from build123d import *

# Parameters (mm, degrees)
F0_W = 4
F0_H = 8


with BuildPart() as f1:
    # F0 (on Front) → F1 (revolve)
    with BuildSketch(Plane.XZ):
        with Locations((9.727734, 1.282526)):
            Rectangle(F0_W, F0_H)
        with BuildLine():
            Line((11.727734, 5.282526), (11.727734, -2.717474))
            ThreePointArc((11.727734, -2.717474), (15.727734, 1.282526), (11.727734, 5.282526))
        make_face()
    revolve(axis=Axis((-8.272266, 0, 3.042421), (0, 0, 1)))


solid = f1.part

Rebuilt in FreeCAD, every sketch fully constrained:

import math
import FreeCAD as App
import Part
import Sketcher
Q = App.Units.Quantity

doc = App.newDocument("Part")
params = doc.addObject("Spreadsheet::Sheet", "Params")
for row, (alias, value) in enumerate([
    ("sketch1_radius", "4 mm"),
    ("sketch1_width", "4 mm"),
    ("revolution_angle", "360 deg"),
], start=1):
    params.set(f"A{row}", alias)
    params.set(f"B{row}", "=" + value)
    params.setAlias(f"B{row}", alias)

body = doc.addObject("PartDesign::Body", "Body")

# Sketch on XZ plane
sketch1 = doc.addObject("Sketcher::SketchObject", "Sketch")
body.addObject(sketch1)
sketch1.AttachmentSupport = (doc.XZ_Plane, [""])
sketch1.MapMode = "FlatFace"
sketch1.addGeometry([
    Part.LineSegment(App.Vector(7.7, 5.3, 0), App.Vector(7.7, -2.7, 0)),
    Part.LineSegment(App.Vector(7.7, -2.7, 0), App.Vector(11.7, -2.7, 0)),
    Part.ArcOfCircle(Part.Circle(App.Vector(11.7, 1.3, 0), App.Vector(0, 0, 1), 4), math.radians(-90), math.radians(90)),
    Part.LineSegment(App.Vector(11.7, 5.3, 0), App.Vector(7.7, 5.3, 0)),
], False)
sketch1.addGeometry(Part.LineSegment(App.Vector(-8.3, -2.7, 0), App.Vector(-8.3, 5.3, 0)), True)  # axis
sketch1.addConstraint([
    Sketcher.Constraint("Coincident", 0, 2, 1, 1),
    Sketcher.Constraint("Tangent", 1, 2, 2, 1),
    Sketcher.Constraint("Tangent", 2, 2, 3, 1),
    Sketcher.Constraint("Coincident", 3, 2, 0, 1),
    Sketcher.Constraint("Vertical", 0),
    Sketcher.Constraint("Horizontal", 1),
    Sketcher.Constraint("Horizontal", 3),
    Sketcher.Constraint("Vertical", 4),
    Sketcher.Constraint("Horizontal", 1, 2, 4, 1),
    Sketcher.Constraint("Horizontal", 3, 2, 4, 2),
    Sketcher.Constraint("Radius", 2, Q("4 mm")),
    Sketcher.Constraint("DistanceX", 1, 1, 1, 2, Q("4 mm")),
    Sketcher.Constraint("DistanceX", 4, 1, 0, 2, Q("16 mm")),
    Sketcher.Constraint("DistanceX", -1, 1, 2, 3, Q("11.727734 mm")),
    Sketcher.Constraint("DistanceY", -1, 1, 2, 3, Q("1.282526 mm")),
])
sketch1.setExpression("Constraints[10]", "Params.sketch1_radius")
sketch1.setExpression("Constraints[11]", "Params.sketch1_width")
revolution = doc.addObject("PartDesign::Revolution", "Revolution")
body.addObject(revolution)
revolution.Profile = sketch1
revolution.ReferenceAxis = (sketch1, ["Axis0"])
revolution.setExpression("Angle", "Params.revolution_angle")

doc.recompute()
